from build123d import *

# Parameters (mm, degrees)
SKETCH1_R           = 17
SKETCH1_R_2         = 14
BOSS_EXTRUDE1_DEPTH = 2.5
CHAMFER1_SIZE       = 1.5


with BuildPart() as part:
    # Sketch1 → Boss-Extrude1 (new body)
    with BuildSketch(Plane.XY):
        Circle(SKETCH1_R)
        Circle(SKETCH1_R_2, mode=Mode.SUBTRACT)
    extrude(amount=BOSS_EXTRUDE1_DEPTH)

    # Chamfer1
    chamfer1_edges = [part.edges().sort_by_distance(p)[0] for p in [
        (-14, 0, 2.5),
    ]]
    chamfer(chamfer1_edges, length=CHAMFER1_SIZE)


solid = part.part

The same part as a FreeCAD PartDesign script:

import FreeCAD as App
import Part
import Sketcher

V = App.Vector


def edges_at(feature, points):
    """Names of the edges that pass closest to the given points."""
    edges = feature.Shape.Edges
    near = lambda p: min(range(len(edges)), key=lambda i: edges[i].distToShape(Part.Vertex(*p))[0])
    return sorted({f"Edge{near(p) + 1}" for p in points})

doc = App.newDocument("Part")
body = doc.addObject("PartDesign::Body", "Body")

# Sketch on XY plane
sketch1 = body.newObject("Sketcher::SketchObject", "Sketch")
sketch1.AttachmentSupport = (doc.getObject("XY_Plane"), [""])
sketch1.MapMode = "FlatFace"
sketch1.addGeometry(Part.Circle(V(0, 0, 0), V(0, 0, 1), 17), False)
sketch1.addGeometry(Part.Circle(V(0, 0, 0), V(0, 0, 1), 14), False)
sketch1.addConstraint(Sketcher.Constraint("Coincident", 0, 3, -1, 1))
sketch1.addConstraint(Sketcher.Constraint("Coincident", 1, 3, -1, 1))
sketch1.addConstraint(Sketcher.Constraint("Diameter", 0, 34.0))
sketch1.addConstraint(Sketcher.Constraint("Diameter", 1, 28.0))
pad1 = body.newObject("PartDesign::Pad", "Pad")
pad1.Profile = sketch1
pad1.Length = 2.5
doc.recompute()

chamfer = body.newObject("PartDesign::Chamfer", "Chamfer")
chamfer.Base = (pad1, edges_at(pad1, [(-14, 0, 2.5)]))
chamfer.Size = 1.5

doc.recompute()
